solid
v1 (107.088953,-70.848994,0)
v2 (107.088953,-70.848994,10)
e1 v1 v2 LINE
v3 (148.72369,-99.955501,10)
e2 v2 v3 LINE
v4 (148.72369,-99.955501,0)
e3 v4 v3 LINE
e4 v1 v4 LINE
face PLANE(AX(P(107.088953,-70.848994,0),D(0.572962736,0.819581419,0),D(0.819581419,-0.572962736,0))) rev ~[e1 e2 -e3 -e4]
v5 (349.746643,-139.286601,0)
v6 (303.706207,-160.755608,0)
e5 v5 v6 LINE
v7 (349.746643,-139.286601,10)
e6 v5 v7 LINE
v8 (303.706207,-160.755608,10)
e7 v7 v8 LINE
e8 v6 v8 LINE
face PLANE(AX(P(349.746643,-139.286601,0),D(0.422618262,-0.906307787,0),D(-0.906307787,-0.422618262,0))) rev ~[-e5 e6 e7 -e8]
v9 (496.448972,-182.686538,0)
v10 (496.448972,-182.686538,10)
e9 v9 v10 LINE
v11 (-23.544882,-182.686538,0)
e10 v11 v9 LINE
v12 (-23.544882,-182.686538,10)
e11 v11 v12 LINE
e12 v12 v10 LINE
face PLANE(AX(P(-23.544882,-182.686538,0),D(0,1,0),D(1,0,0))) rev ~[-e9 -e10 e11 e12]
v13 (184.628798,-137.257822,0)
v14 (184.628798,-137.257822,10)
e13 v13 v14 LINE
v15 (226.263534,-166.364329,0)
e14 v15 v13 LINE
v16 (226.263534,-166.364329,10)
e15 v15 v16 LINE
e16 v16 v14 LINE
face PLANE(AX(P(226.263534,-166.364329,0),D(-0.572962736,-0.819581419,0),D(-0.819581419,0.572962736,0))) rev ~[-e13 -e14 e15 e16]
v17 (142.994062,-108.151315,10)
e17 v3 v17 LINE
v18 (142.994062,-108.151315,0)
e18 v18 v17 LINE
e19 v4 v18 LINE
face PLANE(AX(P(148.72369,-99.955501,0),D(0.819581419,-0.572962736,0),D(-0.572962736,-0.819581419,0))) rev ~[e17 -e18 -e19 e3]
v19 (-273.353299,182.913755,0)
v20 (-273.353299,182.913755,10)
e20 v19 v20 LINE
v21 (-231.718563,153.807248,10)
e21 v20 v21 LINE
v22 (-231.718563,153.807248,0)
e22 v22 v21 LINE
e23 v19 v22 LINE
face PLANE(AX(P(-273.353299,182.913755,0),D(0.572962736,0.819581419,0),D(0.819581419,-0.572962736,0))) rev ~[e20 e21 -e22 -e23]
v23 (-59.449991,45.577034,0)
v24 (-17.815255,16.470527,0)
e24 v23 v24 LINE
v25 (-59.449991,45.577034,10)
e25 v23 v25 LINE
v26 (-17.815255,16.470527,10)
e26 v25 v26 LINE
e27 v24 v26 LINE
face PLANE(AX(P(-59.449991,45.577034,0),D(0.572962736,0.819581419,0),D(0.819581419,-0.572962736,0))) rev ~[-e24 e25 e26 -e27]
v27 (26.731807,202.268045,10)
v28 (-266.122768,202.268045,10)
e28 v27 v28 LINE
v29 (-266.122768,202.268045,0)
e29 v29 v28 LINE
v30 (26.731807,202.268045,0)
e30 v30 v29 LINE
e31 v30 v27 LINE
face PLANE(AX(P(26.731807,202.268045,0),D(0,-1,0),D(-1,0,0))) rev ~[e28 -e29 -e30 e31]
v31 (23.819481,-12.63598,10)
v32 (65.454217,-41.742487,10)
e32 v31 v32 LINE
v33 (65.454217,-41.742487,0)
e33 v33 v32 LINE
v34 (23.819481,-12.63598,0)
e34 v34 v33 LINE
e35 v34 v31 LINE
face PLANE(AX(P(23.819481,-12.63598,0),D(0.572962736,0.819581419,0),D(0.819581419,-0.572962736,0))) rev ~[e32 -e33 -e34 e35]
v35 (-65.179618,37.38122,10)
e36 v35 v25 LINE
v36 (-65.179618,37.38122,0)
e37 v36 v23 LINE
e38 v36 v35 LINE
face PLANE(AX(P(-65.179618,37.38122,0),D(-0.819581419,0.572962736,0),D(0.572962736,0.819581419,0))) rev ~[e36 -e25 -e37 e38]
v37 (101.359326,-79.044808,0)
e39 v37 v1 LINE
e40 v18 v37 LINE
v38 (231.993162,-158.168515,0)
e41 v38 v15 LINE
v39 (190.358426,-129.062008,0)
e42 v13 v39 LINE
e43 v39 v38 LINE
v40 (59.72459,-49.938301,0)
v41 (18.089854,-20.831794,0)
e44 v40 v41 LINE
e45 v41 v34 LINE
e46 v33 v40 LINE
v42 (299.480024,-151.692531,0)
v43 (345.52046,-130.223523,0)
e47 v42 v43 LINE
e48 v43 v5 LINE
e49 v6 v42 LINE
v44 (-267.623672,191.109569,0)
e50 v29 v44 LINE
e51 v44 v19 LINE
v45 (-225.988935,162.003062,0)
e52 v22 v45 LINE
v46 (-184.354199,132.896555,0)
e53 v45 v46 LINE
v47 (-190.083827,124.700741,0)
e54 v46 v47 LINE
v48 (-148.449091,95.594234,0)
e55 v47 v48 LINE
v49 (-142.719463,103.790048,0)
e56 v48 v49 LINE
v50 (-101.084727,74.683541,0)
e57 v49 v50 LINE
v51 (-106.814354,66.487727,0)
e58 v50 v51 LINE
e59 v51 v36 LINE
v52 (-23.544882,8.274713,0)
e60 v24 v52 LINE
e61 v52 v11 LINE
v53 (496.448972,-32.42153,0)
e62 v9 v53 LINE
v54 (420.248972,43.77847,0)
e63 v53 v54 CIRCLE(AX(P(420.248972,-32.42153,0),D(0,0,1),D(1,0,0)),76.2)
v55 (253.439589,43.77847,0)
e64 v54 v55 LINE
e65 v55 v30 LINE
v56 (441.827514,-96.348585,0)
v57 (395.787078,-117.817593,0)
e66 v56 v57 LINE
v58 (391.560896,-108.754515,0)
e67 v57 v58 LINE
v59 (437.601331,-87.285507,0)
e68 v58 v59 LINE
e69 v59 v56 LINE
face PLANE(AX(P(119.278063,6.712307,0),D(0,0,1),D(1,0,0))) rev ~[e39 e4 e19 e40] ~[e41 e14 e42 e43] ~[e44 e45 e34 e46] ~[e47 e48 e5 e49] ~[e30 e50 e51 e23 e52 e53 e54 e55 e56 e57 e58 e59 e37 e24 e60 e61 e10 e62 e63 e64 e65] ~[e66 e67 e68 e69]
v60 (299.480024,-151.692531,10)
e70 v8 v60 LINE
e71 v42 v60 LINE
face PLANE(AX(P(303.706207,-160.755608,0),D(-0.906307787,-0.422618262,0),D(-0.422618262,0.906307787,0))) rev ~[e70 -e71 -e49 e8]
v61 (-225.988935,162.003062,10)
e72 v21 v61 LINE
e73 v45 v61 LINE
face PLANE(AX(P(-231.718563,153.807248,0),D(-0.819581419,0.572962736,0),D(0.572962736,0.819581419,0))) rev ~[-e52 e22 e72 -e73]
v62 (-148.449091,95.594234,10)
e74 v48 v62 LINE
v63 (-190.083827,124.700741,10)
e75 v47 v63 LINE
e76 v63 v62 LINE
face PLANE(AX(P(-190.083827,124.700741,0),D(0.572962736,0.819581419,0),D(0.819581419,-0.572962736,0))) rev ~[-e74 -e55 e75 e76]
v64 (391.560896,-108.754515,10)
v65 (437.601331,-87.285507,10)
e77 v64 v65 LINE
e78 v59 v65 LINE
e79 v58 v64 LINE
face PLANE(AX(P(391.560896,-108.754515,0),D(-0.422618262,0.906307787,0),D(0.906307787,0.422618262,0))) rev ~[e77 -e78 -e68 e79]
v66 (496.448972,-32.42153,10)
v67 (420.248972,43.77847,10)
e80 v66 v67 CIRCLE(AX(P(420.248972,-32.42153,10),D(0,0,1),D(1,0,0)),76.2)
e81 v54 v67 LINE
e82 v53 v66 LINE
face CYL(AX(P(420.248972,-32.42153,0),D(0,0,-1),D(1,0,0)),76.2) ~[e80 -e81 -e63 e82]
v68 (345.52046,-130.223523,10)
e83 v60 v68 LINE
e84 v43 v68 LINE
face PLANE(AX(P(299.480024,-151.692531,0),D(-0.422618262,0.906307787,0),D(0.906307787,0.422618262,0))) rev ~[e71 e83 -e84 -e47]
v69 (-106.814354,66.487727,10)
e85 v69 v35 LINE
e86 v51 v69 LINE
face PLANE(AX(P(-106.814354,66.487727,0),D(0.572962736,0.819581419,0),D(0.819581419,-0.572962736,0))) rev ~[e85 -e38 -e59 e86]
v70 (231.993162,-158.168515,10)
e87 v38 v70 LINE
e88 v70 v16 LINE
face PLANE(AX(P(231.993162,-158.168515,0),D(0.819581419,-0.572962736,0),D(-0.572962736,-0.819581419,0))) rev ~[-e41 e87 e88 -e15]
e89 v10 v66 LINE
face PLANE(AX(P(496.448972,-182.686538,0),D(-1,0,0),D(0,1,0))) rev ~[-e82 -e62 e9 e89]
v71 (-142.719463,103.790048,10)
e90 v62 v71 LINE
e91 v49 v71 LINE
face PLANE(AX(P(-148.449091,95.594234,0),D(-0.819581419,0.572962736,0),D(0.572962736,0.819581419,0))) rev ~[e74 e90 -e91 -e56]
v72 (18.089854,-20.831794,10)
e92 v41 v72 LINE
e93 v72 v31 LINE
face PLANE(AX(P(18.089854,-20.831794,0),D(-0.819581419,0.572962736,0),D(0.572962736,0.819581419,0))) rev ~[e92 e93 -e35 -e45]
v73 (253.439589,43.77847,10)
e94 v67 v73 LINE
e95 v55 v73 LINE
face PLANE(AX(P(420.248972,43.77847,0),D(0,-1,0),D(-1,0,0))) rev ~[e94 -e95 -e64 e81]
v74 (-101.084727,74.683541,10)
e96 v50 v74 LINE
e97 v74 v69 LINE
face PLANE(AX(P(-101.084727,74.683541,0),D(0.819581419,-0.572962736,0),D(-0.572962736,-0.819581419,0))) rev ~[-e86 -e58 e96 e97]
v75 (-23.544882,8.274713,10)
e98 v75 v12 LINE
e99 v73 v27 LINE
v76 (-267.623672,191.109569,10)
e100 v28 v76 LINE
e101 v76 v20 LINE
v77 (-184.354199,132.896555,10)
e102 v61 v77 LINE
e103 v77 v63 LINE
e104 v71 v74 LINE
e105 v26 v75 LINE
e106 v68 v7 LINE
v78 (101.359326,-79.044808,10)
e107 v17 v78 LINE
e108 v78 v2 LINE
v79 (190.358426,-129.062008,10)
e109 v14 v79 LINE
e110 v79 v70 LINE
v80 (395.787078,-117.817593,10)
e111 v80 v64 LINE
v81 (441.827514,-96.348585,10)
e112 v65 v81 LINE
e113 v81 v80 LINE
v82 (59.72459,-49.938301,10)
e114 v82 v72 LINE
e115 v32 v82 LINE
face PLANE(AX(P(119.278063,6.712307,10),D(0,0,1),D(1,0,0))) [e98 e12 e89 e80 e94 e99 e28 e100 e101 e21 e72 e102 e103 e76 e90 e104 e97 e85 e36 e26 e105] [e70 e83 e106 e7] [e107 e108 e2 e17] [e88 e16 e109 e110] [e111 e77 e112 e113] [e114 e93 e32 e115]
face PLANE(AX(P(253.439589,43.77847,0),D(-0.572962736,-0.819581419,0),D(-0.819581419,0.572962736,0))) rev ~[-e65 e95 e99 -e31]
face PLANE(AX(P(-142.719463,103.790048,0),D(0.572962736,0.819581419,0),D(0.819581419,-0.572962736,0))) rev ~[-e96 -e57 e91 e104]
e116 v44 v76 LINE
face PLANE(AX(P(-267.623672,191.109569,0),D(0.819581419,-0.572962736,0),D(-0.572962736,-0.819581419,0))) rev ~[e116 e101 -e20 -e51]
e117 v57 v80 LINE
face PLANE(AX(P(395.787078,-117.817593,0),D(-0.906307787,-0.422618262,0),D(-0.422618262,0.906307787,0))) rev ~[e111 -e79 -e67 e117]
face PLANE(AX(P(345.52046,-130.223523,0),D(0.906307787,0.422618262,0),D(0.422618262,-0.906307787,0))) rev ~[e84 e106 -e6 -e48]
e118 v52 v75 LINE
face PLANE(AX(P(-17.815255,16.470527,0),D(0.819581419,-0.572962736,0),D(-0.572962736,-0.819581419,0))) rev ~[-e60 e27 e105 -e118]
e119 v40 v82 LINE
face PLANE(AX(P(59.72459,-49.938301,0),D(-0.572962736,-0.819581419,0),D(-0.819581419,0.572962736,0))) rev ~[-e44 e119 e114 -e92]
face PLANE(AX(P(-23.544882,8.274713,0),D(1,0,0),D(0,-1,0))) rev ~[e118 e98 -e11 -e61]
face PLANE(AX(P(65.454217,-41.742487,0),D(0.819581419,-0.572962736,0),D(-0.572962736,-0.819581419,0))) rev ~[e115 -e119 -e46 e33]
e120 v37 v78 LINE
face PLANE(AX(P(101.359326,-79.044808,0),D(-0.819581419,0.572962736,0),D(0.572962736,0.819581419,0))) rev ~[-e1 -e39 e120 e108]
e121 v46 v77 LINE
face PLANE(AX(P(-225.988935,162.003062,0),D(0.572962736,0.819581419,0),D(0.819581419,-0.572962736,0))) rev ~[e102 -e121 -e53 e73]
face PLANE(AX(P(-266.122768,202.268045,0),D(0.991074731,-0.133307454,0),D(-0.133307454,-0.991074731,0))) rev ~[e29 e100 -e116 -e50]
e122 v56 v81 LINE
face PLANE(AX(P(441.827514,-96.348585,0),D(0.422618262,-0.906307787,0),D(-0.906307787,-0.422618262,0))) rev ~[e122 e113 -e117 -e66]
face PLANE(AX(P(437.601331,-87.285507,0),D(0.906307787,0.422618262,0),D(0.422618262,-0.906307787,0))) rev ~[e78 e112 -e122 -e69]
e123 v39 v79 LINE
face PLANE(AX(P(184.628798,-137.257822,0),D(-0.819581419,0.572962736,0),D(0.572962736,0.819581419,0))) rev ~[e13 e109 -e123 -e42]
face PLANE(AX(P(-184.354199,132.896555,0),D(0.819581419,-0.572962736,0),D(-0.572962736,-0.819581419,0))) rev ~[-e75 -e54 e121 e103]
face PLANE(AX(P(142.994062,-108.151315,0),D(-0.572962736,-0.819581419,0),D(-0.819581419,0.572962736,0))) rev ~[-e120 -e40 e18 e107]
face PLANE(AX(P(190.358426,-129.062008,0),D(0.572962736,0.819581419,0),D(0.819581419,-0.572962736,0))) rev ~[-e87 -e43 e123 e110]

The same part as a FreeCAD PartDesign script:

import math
import FreeCAD as App
import Part
import Sketcher
Q = App.Units.Quantity


def add_polygon(sketch, points):
    """Adds a closed chain of lines whose ends are joined by coincident constraints."""
    first, n = sketch.GeometryCount, len(points)
    for a, b in zip(points, points[1:] + points[:1]):
        sketch.addGeometry(Part.LineSegment(App.Vector(*a, 0), App.Vector(*b, 0)), False)
    for i in range(n):
        sketch.addConstraint(Sketcher.Constraint("Coincident", first + i, 2, first + (i + 1) % n, 1))

doc = App.newDocument("Part")
body = doc.addObject("PartDesign::Body", "Body")

sketch1 = doc.addObject("Sketcher::SketchObject", "Sketch")
body.addObject(sketch1)
sketch1.AttachmentSupport = (doc.XY_Plane, [""])
sketch1.MapMode = "FlatFace"
sketch1.addGeometry(Part.LineSegment(App.Vector(27, 202, 0), App.Vector(-266, 202, 0)), False)
sketch1.addGeometry(Part.LineSegment(App.Vector(-266, 202, 0), App.Vector(-268, 191, 0)), False)
sketch1.addGeometry(Part.LineSegment(App.Vector(-268, 191, 0), App.Vector(-273, 183, 0)), False)
sketch1.addGeometry(Part.LineSegment(App.Vector(-273, 183, 0), App.Vector(-232, 154, 0)), False)
sketch1.addGeometry(Part.LineSegment(App.Vector(-232, 154, 0), App.Vector(-226, 162, 0)), False)
sketch1.addGeometry(Part.LineSegment(App.Vector(-226, 162, 0), App.Vector(-184, 133, 0)), False)
sketch1.addGeometry(Part.LineSegment(App.Vector(-184, 133, 0), App.Vector(-190, 125, 0)), False)
sketch1.addGeometry(Part.LineSegment(App.Vector(-190, 125, 0), App.Vector(-148, 96, 0)), False)
sketch1.addGeometry(Part.LineSegment(App.Vector(-148, 96, 0), App.Vector(-143, 104, 0)), False)
sketch1.addGeometry(Part.LineSegment(App.Vector(-143, 104, 0), App.Vector(-101, 75, 0)), False)
sketch1.addGeometry(Part.LineSegment(App.Vector(-101, 75, 0), App.Vector(-107, 66, 0)), False)
sketch1.addGeometry(Part.LineSegment(App.Vector(-107, 66, 0), App.Vector(-65, 37, 0)), False)
sketch1.addGeometry(Part.LineSegment(App.Vector(-65, 37, 0), App.Vector(-59, 46, 0)), False)
sketch1.addGeometry(Part.LineSegment(App.Vector(-59, 46, 0), App.Vector(-18, 16, 0)), False)
sketch1.addGeometry(Part.LineSegment(App.Vector(-18, 16, 0), App.Vector(-24, 8, 0)), False)
sketch1.addGeometry(Part.LineSegment(App.Vector(-24, 8, 0), App.Vector(-24, -183, 0)), False)
sketch1.addGeometry(Part.LineSegment(App.Vector(-24, -183, 0), App.Vector(496, -183, 0)), False)
sketch1.addGeometry(Part.LineSegment(App.Vector(496, -183, 0), App.Vector(496, -32, 0)), False)
sketch1.addGeometry(Part.ArcOfCircle(Part.Circle(App.Vector(420, -32, 0), App.Vector(0, 0, 1), 76), math.radians(0), math.radians(90)), False)
sketch1.addGeometry(Part.LineSegment(App.Vector(420, 44, 0), App.Vector(253, 44, 0)), False)
sketch1.addGeometry(Part.LineSegment(App.Vector(253, 44, 0), App.Vector(27, 202, 0)), False)
add_polygon(sketch1, [(185, -137), (190, -129), (232, -158), (226, -166)])
add_polygon(sketch1, [(304, -161), (299, -152), (346, -130), (350, -139)])
add_polygon(sketch1, [(396, -118), (392, -109), (438, -87), (442, -96)])
add_polygon(sketch1, [(101, -79), (107, -71), (149, -100), (143, -108)])
add_polygon(sketch1, [(18, -21), (24, -13), (65, -42), (60, -50)])
sketch1.addConstraint(Sketcher.Constraint("Coincident", 0, 2, 1, 1))
sketch1.addConstraint(Sketcher.Constraint("Coincident", 1, 2, 2, 1))
sketch1.addConstraint(Sketcher.Constraint("Coincident", 2, 2, 3, 1))
sketch1.addConstraint(Sketcher.Constraint("Coincident", 3, 2, 4, 1))
sketch1.addConstraint(Sketcher.Constraint("Coincident", 4, 2, 5, 1))
sketch1.addConstraint(Sketcher.Constraint("Coincident", 5, 2, 6, 1))
sketch1.addConstraint(Sketcher.Constraint("Coincident", 6, 2, 7, 1))
sketch1.addConstraint(Sketcher.Constraint("Coincident", 7, 2, 8, 1))
sketch1.addConstraint(Sketcher.Constraint("Coincident", 8, 2, 9, 1))
sketch1.addConstraint(Sketcher.Constraint("Coincident", 9, 2, 10, 1))
sketch1.addConstraint(Sketcher.Constraint("Coincident", 10, 2, 11, 1))
sketch1.addConstraint(Sketcher.Constraint("Coincident", 11, 2, 12, 1))
sketch1.addConstraint(Sketcher.Constraint("Coincident", 12, 2, 13, 1))
sketch1.addConstraint(Sketcher.Constraint("Coincident", 13, 2, 14, 1))
sketch1.addConstraint(Sketcher.Constraint("Coincident", 14, 2, 15, 1))
sketch1.addConstraint(Sketcher.Constraint("Coincident", 15, 2, 16, 1))
sketch1.addConstraint(Sketcher.Constraint("Coincident", 16, 2, 17, 1))
sketch1.addConstraint(Sketcher.Constraint("Tangent", 17, 2, 18, 1))
sketch1.addConstraint(Sketcher.Constraint("Tangent", 18, 2, 19, 1))
sketch1.addConstraint(Sketcher.Constraint("Coincident", 19, 2, 20, 1))
sketch1.addConstraint(Sketcher.Constraint("Coincident", 20, 2, 0, 1))
sketch1.addConstraint(Sketcher.Constraint("Horizontal", 0))
sketch1.addConstraint(Sketcher.Constraint("Vertical", 15))
sketch1.addConstraint(Sketcher.Constraint("Horizontal", 16))
sketch1.addConstraint(Sketcher.Constraint("Vertical", 17))
sketch1.addConstraint(Sketcher.Constraint("Horizontal", 19))
sketch1.addConstraint(Sketcher.Constraint("Perpendicular", 2, 3))
sketch1.addConstraint(Sketcher.Constraint("Perpendicular", 3, 4))
sketch1.addConstraint(Sketcher.Constraint("Perpendicular", 4, 5))
sketch1.addConstraint(Sketcher.Constraint("Perpendicular", 5, 6))
sketch1.addConstraint(Sketcher.Constraint("Perpendicular", 6, 7))
sketch1.addConstraint(Sketcher.Constraint("Perpendicular", 7, 8))
sketch1.addConstraint(Sketcher.Constraint("Perpendicular", 8, 9))
sketch1.addConstraint(Sketcher.Constraint("Perpendicular", 9, 10))
sketch1.addConstraint(Sketcher.Constraint("Perpendicular", 10, 11))
sketch1.addConstraint(Sketcher.Constraint("Perpendicular", 11, 12))
sketch1.addConstraint(Sketcher.Constraint("Perpendicular", 12, 13))
sketch1.addConstraint(Sketcher.Constraint("Perpendicular", 13, 14))
sketch1.addConstraint(Sketcher.Constraint("Perpendicular", 14, 20))
sketch1.addConstraint(Sketcher.Constraint("Perpendicular", 20, 21))
sketch1.addConstraint(Sketcher.Constraint("Perpendicular", 21, 22))
sketch1.addConstraint(Sketcher.Constraint("Perpendicular", 22, 23))
sketch1.addConstraint(Sketcher.Constraint("Perpendicular", 23, 24))
sketch1.addConstraint(Sketcher.Constraint("Perpendicular", 25, 26))
sketch1.addConstraint(Sketcher.Constraint("Perpendicular", 26, 27))
sketch1.addConstraint(Sketcher.Constraint("Perpendicular", 27, 28))
sketch1.addConstraint(Sketcher.Constraint("Perpendicular", 28, 29))
sketch1.addConstraint(Sketcher.Constraint("Perpendicular", 29, 30))
sketch1.addConstraint(Sketcher.Constraint("Perpendicular", 30, 31))
sketch1.addConstraint(Sketcher.Constraint("Perpendicular", 31, 32))
sketch1.addConstraint(Sketcher.Constraint("Perpendicular", 24, 33))
sketch1.addConstraint(Sketcher.Constraint("Perpendicular", 33, 34))
sketch1.addConstraint(Sketcher.Constraint("Perpendicular", 34, 35))
sketch1.addConstraint(Sketcher.Constraint("Perpendicular", 35, 36))
sketch1.addConstraint(Sketcher.Constraint("Perpendicular", 36, 37))
sketch1.addConstraint(Sketcher.Constraint("Perpendicular", 37, 38))
sketch1.addConstraint(Sketcher.Constraint("Perpendicular", 38, 39))
sketch1.addConstraint(Sketcher.Constraint("Perpendicular", 39, 40))
sketch1.addConstraint(Sketcher.Constraint("Equal", 2, 4))
sketch1.addConstraint(Sketcher.Constraint("Equal", 3, 5))
sketch1.addConstraint(Sketcher.Constraint("Equal", 4, 6))
sketch1.addConstraint(Sketcher.Constraint("Equal", 5, 7))
sketch1.addConstraint(Sketcher.Constraint("Equal", 6, 8))
sketch1.addConstraint(Sketcher.Constraint("Equal", 7, 9))
sketch1.addConstraint(Sketcher.Constraint("Equal", 8, 10))
sketch1.addConstraint(Sketcher.Constraint("Equal", 9, 11))
sketch1.addConstraint(Sketcher.Constraint("Equal", 10, 12))
sketch1.addConstraint(Sketcher.Constraint("Equal", 11, 13))
sketch1.addConstraint(Sketcher.Constraint("Equal", 12, 14))
sketch1.addConstraint(Sketcher.Constraint("Equal", 14, 21))
sketch1.addConstraint(Sketcher.Constraint("Equal", 13, 22))
sketch1.addConstraint(Sketcher.Constraint("Equal", 23, 25))
sketch1.addConstraint(Sketcher.Constraint("Equal", 24, 26))
sketch1.addConstraint(Sketcher.Constraint("Equal", 27, 29))
sketch1.addConstraint(Sketcher.Constraint("Equal", 28, 30))
sketch1.addConstraint(Sketcher.Constraint("Equal", 31, 33))
sketch1.addConstraint(Sketcher.Constraint("Equal", 32, 34))
sketch1.addConstraint(Sketcher.Constraint("Equal", 35, 37))
sketch1.addConstraint(Sketcher.Constraint("Equal", 36, 38))
sketch1.addConstraint(Sketcher.Constraint("Radius", 18, Q("3 in")))
sketch1.addConstraint(Sketcher.Constraint("Distance", 3, Q("2 in")))
sketch1.addConstraint(Sketcher.Constraint("Angle", 25, Q("115 deg")))
sketch1.addConstraint(Sketcher.Constraint("DistanceX", 1, 2, 18, 3, Q("27.0816001 in")))
sketch1.addConstraint(Sketcher.Constraint("Distance", 2, Q("10 mm")))
sketch1.addConstraint(Sketcher.Constraint("DistanceY", 15, 2, 15, 1, Q("190.961251 mm")))
sketch1.addConstraint(Sketcher.Constraint("DistanceY", 17, 1, 17, 2, Q("150.265008 mm")))
sketch1.addConstraint(Sketcher.Constraint("DistanceX", 2, 2, -1, 1, Q("273.353299 mm")))
sketch1.addConstraint(Sketcher.Constraint("DistanceX", 5, 2, -1, 1, Q("184.354199 mm")))
sketch1.addConstraint(Sketcher.Constraint("DistanceX", -1, 1, 24, 2, Q("184.628798 mm")))
sketch1.addConstraint(Sketcher.Constraint("DistanceY", 27, 2, -1, 1, Q("139.286601 mm")))
sketch1.addConstraint(Sketcher.Constraint("DistanceY", 34, 2, -1, 1, Q("99.955501 mm")))
sketch1.addConstraint(Sketcher.Constraint("DistanceY", 39, 2, -1, 1, Q("49.938301 mm")))
sketch1.addConstraint(Sketcher.Constraint("DistanceX", 12, 2, 20, 2, Q("86.181798 mm")))
sketch1.addConstraint(Sketcher.Constraint("DistanceY", 23, 2, 19, 2, Q("210.142799 mm")))
sketch1.addConstraint(Sketcher.Constraint("DistanceY", 23, 2, 25, 2, Q("14.671798 mm")))
sketch1.addConstraint(Sketcher.Constraint("DistanceX", 21, 2, 25, 2, Q("109.121599 mm")))
sketch1.addConstraint(Sketcher.Constraint("DistanceX", 36, 2, 21, 2, Q("88.9991 mm")))
sketch1.addConstraint(Sketcher.Constraint("DistanceX", 0, 2, 0, 1, Q("292.854575 mm")))
sketch1.addConstraint(Sketcher.Constraint("DistanceX", 19, 2, 19, 1, Q("166.809383 mm")))
sketch1.addConstraint(Sketcher.Constraint("DistanceX", -1, 1, 30, 2, Q("437.601331 mm")))
sketch1.addConstraint(Sketcher.Constraint("DistanceX", -1, 1, 37, 2, Q("23.819481 mm")))
sketch1.addConstraint(Sketcher.Constraint("DistanceY", 26, 2, 32, 2, Q("12.40593 mm")))
pad1 = doc.addObject("PartDesign::Pad", "Pad")
body.addObject(pad1)
pad1.Profile = sketch1
pad1.Length = 10

doc.recompute()
